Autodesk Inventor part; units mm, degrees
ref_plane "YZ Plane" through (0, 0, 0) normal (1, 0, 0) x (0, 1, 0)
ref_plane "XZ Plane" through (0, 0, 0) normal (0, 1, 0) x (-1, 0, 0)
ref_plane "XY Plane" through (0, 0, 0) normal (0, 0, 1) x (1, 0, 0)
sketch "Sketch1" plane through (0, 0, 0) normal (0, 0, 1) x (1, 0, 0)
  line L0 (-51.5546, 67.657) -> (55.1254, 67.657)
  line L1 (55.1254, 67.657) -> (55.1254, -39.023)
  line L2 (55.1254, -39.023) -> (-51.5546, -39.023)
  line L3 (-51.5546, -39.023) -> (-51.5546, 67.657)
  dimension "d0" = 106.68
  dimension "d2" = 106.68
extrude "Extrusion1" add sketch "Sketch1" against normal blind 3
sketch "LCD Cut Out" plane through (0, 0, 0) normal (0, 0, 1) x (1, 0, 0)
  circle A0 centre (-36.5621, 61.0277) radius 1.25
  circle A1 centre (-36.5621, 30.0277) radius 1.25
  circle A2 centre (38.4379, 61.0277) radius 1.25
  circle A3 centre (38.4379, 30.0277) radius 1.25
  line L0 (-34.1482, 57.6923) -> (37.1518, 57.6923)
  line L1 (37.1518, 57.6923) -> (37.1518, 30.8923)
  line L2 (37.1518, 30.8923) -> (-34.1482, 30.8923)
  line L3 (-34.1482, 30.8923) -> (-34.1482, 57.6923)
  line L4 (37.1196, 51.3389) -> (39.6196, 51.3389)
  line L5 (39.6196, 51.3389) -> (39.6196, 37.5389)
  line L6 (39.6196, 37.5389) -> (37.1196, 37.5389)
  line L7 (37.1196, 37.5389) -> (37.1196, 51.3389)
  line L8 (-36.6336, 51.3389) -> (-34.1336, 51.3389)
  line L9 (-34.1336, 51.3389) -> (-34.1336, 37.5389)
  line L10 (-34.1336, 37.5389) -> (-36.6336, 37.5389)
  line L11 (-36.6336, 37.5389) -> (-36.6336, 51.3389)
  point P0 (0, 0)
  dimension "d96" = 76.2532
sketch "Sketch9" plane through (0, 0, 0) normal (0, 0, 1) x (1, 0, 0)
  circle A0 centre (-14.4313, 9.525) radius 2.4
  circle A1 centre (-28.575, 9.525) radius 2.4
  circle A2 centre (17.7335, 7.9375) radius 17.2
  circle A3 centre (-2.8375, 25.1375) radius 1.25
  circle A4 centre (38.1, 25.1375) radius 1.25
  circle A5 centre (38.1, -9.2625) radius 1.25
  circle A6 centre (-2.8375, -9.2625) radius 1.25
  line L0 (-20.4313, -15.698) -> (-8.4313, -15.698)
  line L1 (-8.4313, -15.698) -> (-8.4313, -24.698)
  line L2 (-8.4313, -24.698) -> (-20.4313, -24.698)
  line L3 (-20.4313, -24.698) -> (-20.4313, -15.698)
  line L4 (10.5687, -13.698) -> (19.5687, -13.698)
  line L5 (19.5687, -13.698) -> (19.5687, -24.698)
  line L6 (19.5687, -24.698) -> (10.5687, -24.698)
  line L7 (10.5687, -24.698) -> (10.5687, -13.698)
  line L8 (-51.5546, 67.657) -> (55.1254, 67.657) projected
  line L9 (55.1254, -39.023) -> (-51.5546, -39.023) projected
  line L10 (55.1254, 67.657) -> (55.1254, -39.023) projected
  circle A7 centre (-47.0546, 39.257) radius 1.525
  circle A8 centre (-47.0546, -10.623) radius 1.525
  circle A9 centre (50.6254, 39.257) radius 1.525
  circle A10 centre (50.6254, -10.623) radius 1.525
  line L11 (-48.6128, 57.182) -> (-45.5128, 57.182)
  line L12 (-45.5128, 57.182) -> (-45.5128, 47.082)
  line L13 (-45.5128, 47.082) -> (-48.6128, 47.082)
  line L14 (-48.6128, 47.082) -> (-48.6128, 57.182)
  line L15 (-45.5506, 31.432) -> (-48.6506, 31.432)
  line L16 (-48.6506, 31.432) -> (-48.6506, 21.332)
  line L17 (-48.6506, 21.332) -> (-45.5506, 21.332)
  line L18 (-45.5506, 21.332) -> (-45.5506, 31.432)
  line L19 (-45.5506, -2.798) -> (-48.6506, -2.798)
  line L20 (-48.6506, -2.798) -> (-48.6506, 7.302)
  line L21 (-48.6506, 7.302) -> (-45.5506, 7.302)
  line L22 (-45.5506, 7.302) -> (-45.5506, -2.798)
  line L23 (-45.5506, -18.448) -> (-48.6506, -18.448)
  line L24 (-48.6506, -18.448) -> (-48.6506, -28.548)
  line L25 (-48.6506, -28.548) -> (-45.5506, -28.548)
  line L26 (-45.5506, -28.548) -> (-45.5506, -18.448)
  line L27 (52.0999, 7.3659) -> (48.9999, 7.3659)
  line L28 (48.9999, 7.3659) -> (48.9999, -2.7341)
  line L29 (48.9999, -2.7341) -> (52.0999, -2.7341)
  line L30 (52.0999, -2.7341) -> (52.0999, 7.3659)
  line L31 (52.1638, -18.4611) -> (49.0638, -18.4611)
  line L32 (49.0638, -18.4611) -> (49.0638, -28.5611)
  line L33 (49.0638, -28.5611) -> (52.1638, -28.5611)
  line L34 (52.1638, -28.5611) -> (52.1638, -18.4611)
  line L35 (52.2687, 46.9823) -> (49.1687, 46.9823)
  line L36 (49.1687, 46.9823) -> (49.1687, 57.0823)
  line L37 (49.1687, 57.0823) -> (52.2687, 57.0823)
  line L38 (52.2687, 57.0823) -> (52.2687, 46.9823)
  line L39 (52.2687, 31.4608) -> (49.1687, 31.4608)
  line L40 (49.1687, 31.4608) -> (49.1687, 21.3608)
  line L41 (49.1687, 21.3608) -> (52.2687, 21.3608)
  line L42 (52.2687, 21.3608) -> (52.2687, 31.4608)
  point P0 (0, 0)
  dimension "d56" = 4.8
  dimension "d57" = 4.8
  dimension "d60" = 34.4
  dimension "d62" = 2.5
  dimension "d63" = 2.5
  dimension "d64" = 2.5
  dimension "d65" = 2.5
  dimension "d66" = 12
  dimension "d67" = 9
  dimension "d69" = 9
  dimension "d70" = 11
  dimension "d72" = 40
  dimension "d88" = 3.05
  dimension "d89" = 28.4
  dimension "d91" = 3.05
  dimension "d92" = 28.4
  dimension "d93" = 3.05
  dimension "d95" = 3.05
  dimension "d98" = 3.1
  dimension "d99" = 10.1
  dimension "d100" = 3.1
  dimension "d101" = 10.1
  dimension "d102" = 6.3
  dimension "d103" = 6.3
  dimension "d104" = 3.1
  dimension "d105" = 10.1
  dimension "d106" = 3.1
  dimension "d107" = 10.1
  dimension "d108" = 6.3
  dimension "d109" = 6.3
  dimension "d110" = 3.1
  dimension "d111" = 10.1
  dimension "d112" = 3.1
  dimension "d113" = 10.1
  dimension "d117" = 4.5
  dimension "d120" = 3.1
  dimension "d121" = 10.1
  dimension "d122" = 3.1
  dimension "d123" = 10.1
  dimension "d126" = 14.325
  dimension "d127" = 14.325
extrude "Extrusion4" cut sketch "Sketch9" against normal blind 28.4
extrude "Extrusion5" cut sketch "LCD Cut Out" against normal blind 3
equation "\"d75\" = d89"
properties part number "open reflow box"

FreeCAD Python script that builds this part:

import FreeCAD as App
import Part
import Sketcher
Q = App.Units.Quantity

doc = App.newDocument("Part")
body = doc.addObject("PartDesign::Body", "Body")

# Sketch on XY plane
sketch1 = body.newObject("Sketcher::SketchObject", "Sketch")
sketch1.AttachmentSupport = (doc.getObject("XY_Plane"), [""])
sketch1.MapMode = "FlatFace"
sketch1.addGeometry([
    Part.LineSegment(App.Vector(55, 68, 0), App.Vector(-52, 68, 0)),
    Part.LineSegment(App.Vector(-52, 68, 0), App.Vector(-52, -39, 0)),
    Part.LineSegment(App.Vector(-52, -39, 0), App.Vector(55, -39, 0)),
    Part.LineSegment(App.Vector(55, -39, 0), App.Vector(55, 68, 0)),
], False)
sketch1.addConstraint([
    Sketcher.Constraint("Coincident", 0, 2, 1, 1),
    Sketcher.Constraint("Coincident", 1, 2, 2, 1),
    Sketcher.Constraint("Coincident", 2, 2, 3, 1),
    Sketcher.Constraint("Coincident", 3, 2, 0, 1),
    Sketcher.Constraint("Horizontal", 0),
    Sketcher.Constraint("Vertical", 1),
    Sketcher.Constraint("Horizontal", 2),
    Sketcher.Constraint("Vertical", 3),
    Sketcher.Constraint("Equal", 2, 1),
    Sketcher.Constraint("DistanceX", 0, 2, 0, 1, Q("106.68 mm")),
    Sketcher.Constraint("DistanceY", -1, 1, 0, 2, Q("67.657 mm")),
    Sketcher.Constraint("DistanceX", 0, 2, -1, 1, Q("51.5546 mm")),
])
pad1 = body.newObject("PartDesign::Pad", "Pad")
pad1.Profile = sketch1
pad1.Length = 3
pad1.Reversed = True

# Sketch on XY plane
sketch2 = body.newObject("Sketcher::SketchObject", "Sketch001")
sketch2.AttachmentSupport = (doc.getObject("XY_Plane"), [""])
sketch2.MapMode = "FlatFace"
sketch2.addGeometry([
    Part.Circle(App.Vector(-14.4, 9.5, 0), App.Vector(0, 0, 1), 2.4),  # 0
    Part.Circle(App.Vector(-28.6, 9.5, 0), App.Vector(0, 0, 1), 2.4),  # 1
    Part.Circle(App.Vector(17.7, 7.9, 0), App.Vector(0, 0, 1), 17.2),  # 2
    Part.Circle(App.Vector(-2.8, 25.1, 0), App.Vector(0, 0, 1), 1.2),  # 3
    Part.Circle(App.Vector(38.1, 25.1, 0), App.Vector(0, 0, 1), 1.2),  # 4
    Part.Circle(App.Vector(38.1, -9.3, 0), App.Vector(0, 0, 1), 1.2),  # 5
    Part.Circle(App.Vector(-2.8, -9.3, 0), App.Vector(0, 0, 1), 1.2),  # 6
    Part.LineSegment(App.Vector(-8.4, -15.7, 0), App.Vector(-20.4, -15.7, 0)),  # 7
    Part.LineSegment(App.Vector(-20.4, -15.7, 0), App.Vector(-20.4, -24.7, 0)),  # 8
    Part.LineSegment(App.Vector(-20.4, -24.7, 0), App.Vector(-8.4, -24.7, 0)),  # 9
    Part.LineSegment(App.Vector(-8.4, -24.7, 0), App.Vector(-8.4, -15.7, 0)),  # 10
    Part.LineSegment(App.Vector(19.6, -13.7, 0), App.Vector(10.6, -13.7, 0)),  # 11
    Part.LineSegment(App.Vector(10.6, -13.7, 0), App.Vector(10.6, -24.7, 0)),  # 12
    Part.LineSegment(App.Vector(10.6, -24.7, 0), App.Vector(19.6, -24.7, 0)),  # 13
    Part.LineSegment(App.Vector(19.6, -24.7, 0), App.Vector(19.6, -13.7, 0)),  # 14
    Part.Circle(App.Vector(-47.1, 39.3, 0), App.Vector(0, 0, 1), 1.5),  # 15
    Part.Circle(App.Vector(-47.1, -10.6, 0), App.Vector(0, 0, 1), 1.5),  # 16
    Part.Circle(App.Vector(50.6, 39.3, 0), App.Vector(0, 0, 1), 1.5),  # 17
    Part.Circle(App.Vector(50.6, -10.6, 0), App.Vector(0, 0, 1), 1.5),  # 18
    Part.LineSegment(App.Vector(-45.5, 57.2, 0), App.Vector(-48.6, 57.2, 0)),  # 19
    Part.LineSegment(App.Vector(-48.6, 57.2, 0), App.Vector(-48.6, 47.1, 0)),  # 20
    Part.LineSegment(App.Vector(-48.6, 47.1, 0), App.Vector(-45.5, 47.1, 0)),  # 21
    Part.LineSegment(App.Vector(-45.5, 47.1, 0), App.Vector(-45.5, 57.2, 0)),  # 22
    Part.LineSegment(App.Vector(-45.6, 21.3, 0), App.Vector(-45.6, 31.4, 0)),  # 23
    Part.LineSegment(App.Vector(-45.6, 31.4, 0), App.Vector(-48.7, 31.4, 0)),  # 24
    Part.LineSegment(App.Vector(-48.7, 31.4, 0), App.Vector(-48.7, 21.3, 0)),  # 25
    Part.LineSegment(App.Vector(-48.7, 21.3, 0), App.Vector(-45.6, 21.3, 0)),  # 26
    Part.LineSegment(App.Vector(-48.7, -2.8, 0), App.Vector(-45.6, -2.8, 0)),  # 27
    Part.LineSegment(App.Vector(-45.6, -2.8, 0), App.Vector(-45.6, 7.3, 0)),  # 28
    Part.LineSegment(App.Vector(-45.6, 7.3, 0), App.Vector(-48.7, 7.3, 0)),  # 29
    Part.LineSegment(App.Vector(-48.7, 7.3, 0), App.Vector(-48.7, -2.8, 0)),  # 30
    Part.LineSegment(App.Vector(-45.6, -28.5, 0), App.Vector(-45.6, -18.4, 0)),  # 31
    Part.LineSegment(App.Vector(-45.6, -18.4, 0), App.Vector(-48.7, -18.4, 0)),  # 32
    Part.LineSegment(App.Vector(-48.7, -18.4, 0), App.Vector(-48.7, -28.5, 0)),  # 33
    Part.LineSegment(App.Vector(-48.7, -28.5, 0), App.Vector(-45.6, -28.5, 0)),  # 34
    Part.LineSegment(App.Vector(52.1, -2.7, 0), App.Vector(52.1, 7.4, 0)),  # 35
    Part.LineSegment(App.Vector(52.1, 7.4, 0), App.Vector(49, 7.4, 0)),  # 36
    Part.LineSegment(App.Vector(49, 7.4, 0), App.Vector(49, -2.7, 0)),  # 37
    Part.LineSegment(App.Vector(49, -2.7, 0), App.Vector(52.1, -2.7, 0)),  # 38
    Part.LineSegment(App.Vector(52.2, -28.6, 0), App.Vector(52.2, -18.5, 0)),  # 39
    Part.LineSegment(App.Vector(52.2, -18.5, 0), App.Vector(49.1, -18.5, 0)),  # 40
    Part.LineSegment(App.Vector(49.1, -18.5, 0), App.Vector(49.1, -28.6, 0)),  # 41
    Part.LineSegment(App.Vector(49.1, -28.6, 0), App.Vector(52.2, -28.6, 0)),  # 42
    Part.LineSegment(App.Vector(49.2, 47, 0), App.Vector(52.3, 47, 0)),  # 43
    Part.LineSegment(App.Vector(52.3, 47, 0), App.Vector(52.3, 57.1, 0)),  # 44
    Part.LineSegment(App.Vector(52.3, 57.1, 0), App.Vector(49.2, 57.1, 0)),  # 45
    Part.LineSegment(App.Vector(49.2, 57.1, 0), App.Vector(49.2, 47, 0)),  # 46
    Part.LineSegment(App.Vector(52.3, 21.4, 0), App.Vector(52.3, 31.5, 0)),  # 47
    Part.LineSegment(App.Vector(52.3, 31.5, 0), App.Vector(49.2, 31.5, 0)),  # 48
    Part.LineSegment(App.Vector(49.2, 31.5, 0), App.Vector(49.2, 21.4, 0)),  # 49
    Part.LineSegment(App.Vector(49.2, 21.4, 0), App.Vector(52.3, 21.4, 0)),  # 50
], False)
sketch2.addConstraint([
    Sketcher.Constraint("Coincident", 7, 2, 8, 1),
    Sketcher.Constraint("Coincident", 8, 2, 9, 1),
    Sketcher.Constraint("Coincident", 9, 2, 10, 1),
    Sketcher.Constraint("Coincident", 10, 2, 7, 1),
    Sketcher.Constraint("Coincident", 11, 2, 12, 1),
    Sketcher.Constraint("Coincident", 12, 2, 13, 1),
    Sketcher.Constraint("Coincident", 13, 2, 14, 1),
    Sketcher.Constraint("Coincident", 14, 2, 11, 1),
    Sketcher.Constraint("Coincident", 19, 2, 20, 1),
    Sketcher.Constraint("Coincident", 20, 2, 21, 1),
    Sketcher.Constraint("Coincident", 21, 2, 22, 1),
    Sketcher.Constraint("Coincident", 22, 2, 19, 1),
    Sketcher.Constraint("Coincident", 23, 2, 24, 1),
    Sketcher.Constraint("Coincident", 24, 2, 25, 1),
    Sketcher.Constraint("Coincident", 25, 2, 26, 1),
    Sketcher.Constraint("Coincident", 26, 2, 23, 1),
    Sketcher.Constraint("Coincident", 27, 2, 28, 1),
    Sketcher.Constraint("Coincident", 28, 2, 29, 1),
    Sketcher.Constraint("Coincident", 29, 2, 30, 1),
    Sketcher.Constraint("Coincident", 30, 2, 27, 1),
    Sketcher.Constraint("Coincident", 31, 2, 32, 1),
    Sketcher.Constraint("Coincident", 32, 2, 33, 1),
    Sketcher.Constraint("Coincident", 33, 2, 34, 1),
    Sketcher.Constraint("Coincident", 34, 2, 31, 1),
    Sketcher.Constraint("Coincident", 35, 2, 36, 1),
    Sketcher.Constraint("Coincident", 36, 2, 37, 1),
    Sketcher.Constraint("Coincident", 37, 2, 38, 1),
    Sketcher.Constraint("Coincident", 38, 2, 35, 1),
    Sketcher.Constraint("Coincident", 39, 2, 40, 1),
    Sketcher.Constraint("Coincident", 40, 2, 41, 1),
    Sketcher.Constraint("Coincident", 41, 2, 42, 1),
    Sketcher.Constraint("Coincident", 42, 2, 39, 1),
    Sketcher.Constraint("Coincident", 43, 2, 44, 1),
    Sketcher.Constraint("Coincident", 44, 2, 45, 1),
    Sketcher.Constraint("Coincident", 45, 2, 46, 1),
    Sketcher.Constraint("Coincident", 46, 2, 43, 1),
    Sketcher.Constraint("Coincident", 47, 2, 48, 1),
    Sketcher.Constraint("Coincident", 48, 2, 49, 1),
    Sketcher.Constraint("Coincident", 49, 2, 50, 1),
    Sketcher.Constraint("Coincident", 50, 2, 47, 1),
    Sketcher.Constraint("Horizontal", 7),
    Sketcher.Constraint("Vertical", 8),
    Sketcher.Constraint("Horizontal", 9),
    Sketcher.Constraint("Vertical", 10),
    Sketcher.Constraint("Horizontal", 11),
    Sketcher.Constraint("Vertical", 12),
    Sketcher.Constraint("Horizontal", 13),
    Sketcher.Constraint("Vertical", 14),
    Sketcher.Constraint("Horizontal", 19),
    Sketcher.Constraint("Vertical", 20),
    Sketcher.Constraint("Horizontal", 21),
    Sketcher.Constraint("Vertical", 22),
    Sketcher.Constraint("Vertical", 23),
    Sketcher.Constraint("Horizontal", 24),
    Sketcher.Constraint("Vertical", 25),
    Sketcher.Constraint("Horizontal", 26),
    Sketcher.Constraint("Horizontal", 27),
    Sketcher.Constraint("Vertical", 28),
    Sketcher.Constraint("Horizontal", 29),
    Sketcher.Constraint("Vertical", 30),
    Sketcher.Constraint("Vertical", 31),
    Sketcher.Constraint("Horizontal", 32),
    Sketcher.Constraint("Vertical", 33),
    Sketcher.Constraint("Horizontal", 34),
    Sketcher.Constraint("Vertical", 35),
    Sketcher.Constraint("Horizontal", 36),
    Sketcher.Constraint("Vertical", 37),
    Sketcher.Constraint("Horizontal", 38),
    Sketcher.Constraint("Vertical", 39),
    Sketcher.Constraint("Horizontal", 40),
    Sketcher.Constraint("Vertical", 41),
    Sketcher.Constraint("Horizontal", 42),
    Sketcher.Constraint("Horizontal", 43),
    Sketcher.Constraint("Vertical", 44),
    Sketcher.Constraint("Horizontal", 45),
    Sketcher.Constraint("Vertical", 46),
    Sketcher.Constraint("Vertical", 47),
    Sketcher.Constraint("Horizontal", 48),
    Sketcher.Constraint("Vertical", 49),
    Sketcher.Constraint("Horizontal", 50),
    Sketcher.Constraint("Equal", 0, 1),
    Sketcher.Constraint("Equal", 3, 4),
    Sketcher.Constraint("Equal", 4, 5),
    Sketcher.Constraint("Equal", 5, 6),
    Sketcher.Constraint("Equal", 15, 16),
    Sketcher.Constraint("Equal", 16, 17),
    Sketcher.Constraint("Equal", 17, 18),
    Sketcher.Constraint("Horizontal", 0, 3, 1, 3),
    Sketcher.Constraint("Horizontal", 3, 3, 4, 3),
    Sketcher.Constraint("Horizontal", 5, 3, 6, 3),
    Sketcher.Constraint("Horizontal", 15, 3, 17, 3),
    Sketcher.Constraint("Horizontal", 16, 3, 18, 3),
    Sketcher.Constraint("Horizontal", 9, 2, 12, 2),
    Sketcher.Constraint("Vertical", 4, 3, 5, 3),
    Sketcher.Constraint("Vertical", 3, 3, 6, 3),
    Sketcher.Constraint("Vertical", 15, 3, 16, 3),
    Sketcher.Constraint("Vertical", 17, 3, 18, 3),
    Sketcher.Constraint("Vertical", 26, 2, 27, 2),
    Sketcher.Constraint("Vertical", 25, 2, 29, 2),
    Sketcher.Constraint("Vertical", 28, 2, 31, 2),
    Sketcher.Constraint("Vertical", 30, 2, 32, 2),
    Sketcher.Constraint("Vertical", 44, 2, 47, 2),
    Sketcher.Constraint("Vertical", 46, 2, 48, 2),
    Sketcher.Constraint("Equal", 21, 24),
    Sketcher.Constraint("Equal", 34, 36),
    Sketcher.Constraint("Equal", 38, 40),
    Sketcher.Constraint("Equal", 42, 43),
    Sketcher.Constraint("Equal", 13, 8),
    Sketcher.Constraint("Equal", 22, 23),
    Sketcher.Constraint("Equal", 25, 28),
    Sketcher.Constraint("Equal", 30, 31),
    Sketcher.Constraint("Equal", 33, 35),
    Sketcher.Constraint("Equal", 37, 39),
    Sketcher.Constraint("Equal", 41, 44),
    Sketcher.Constraint("Equal", 46, 47),
    Sketcher.Constraint("Diameter", 0, Q("4.8 mm")),
    Sketcher.Constraint("Diameter", 2, Q("34.4 mm")),
    Sketcher.Constraint("Diameter", 3, Q("2.5 mm")),
    Sketcher.Constraint("Diameter", 15, Q("3.05 mm")),
    Sketcher.Constraint("DistanceX", 7, 2, 7, 1, Q("12 mm")),
    Sketcher.Constraint("DistanceX", 11, 2, 11, 1, Q("9 mm")),
    Sketcher.Constraint("DistanceY", 12, 2, 12, 1, Q("11 mm")),
    Sketcher.Constraint("DistanceX", 19, 2, 19, 1, Q("3.1 mm")),
    Sketcher.Constraint("DistanceY", 20, 2, 20, 1, Q("10.1 mm")),
    Sketcher.Constraint("DistanceY", 5, 3, 4, 3, Q("34.4 mm")),
    Sketcher.Constraint("DistanceX", -1, 1, 36, 2, Q("49 mm")),
    Sketcher.Constraint("DistanceX", 7, 2, 0, 3, Q("6 mm")),
    Sketcher.Constraint("DistanceX", 10, 2, 11, 2, Q("19 mm")),
    Sketcher.Constraint("DistanceX", 5, 3, 35, 2, Q("14 mm")),
    Sketcher.Constraint("DistanceY", 2, 3, 3, 3, Q("17.2 mm")),
    Sketcher.Constraint("DistanceY", 7, 2, 27, 2, Q("12.9 mm")),
    Sketcher.Constraint("DistanceY", 16, 3, 15, 3, Q("49.88 mm")),
    Sketcher.Constraint("DistanceY", 23, 2, 21, 2, Q("15.65 mm")),
    Sketcher.Constraint("DistanceY", 27, 2, 26, 2, Q("24.13 mm")),
    Sketcher.Constraint("DistanceY", 31, 2, 27, 2, Q("15.65 mm")),
    Sketcher.Constraint("DistanceY", -1, 1, 0, 3, Q("9.525 mm")),
    Sketcher.Constraint("DistanceX", 1, 3, -1, 1, Q("28.575 mm")),
    Sketcher.Constraint("DistanceY", -1, 1, 15, 3, Q("39.257 mm")),
    Sketcher.Constraint("DistanceY", 7, 2, -1, 1, Q("15.698 mm")),
    Sketcher.Constraint("DistanceY", -1, 1, 35, 2, Q("7.366 mm")),
    Sketcher.Constraint("DistanceY", 39, 2, -1, 1, Q("18.461 mm")),
    Sketcher.Constraint("DistanceX", 3, 3, 2, 3, Q("20.571 mm")),
    Sketcher.Constraint("DistanceX", 15, 3, 3, 3, Q("44.217 mm")),
    Sketcher.Constraint("DistanceX", 2, 3, 17, 3, Q("32.892 mm")),
    Sketcher.Constraint("DistanceX", 15, 3, 23, 2, Q("1.504 mm")),
    Sketcher.Constraint("DistanceX", 38, 2, 39, 2, Q("0.064 mm")),
    Sketcher.Constraint("DistanceY", 35, 2, 47, 2, Q("24.095 mm")),
    Sketcher.Constraint("DistanceX", 0, 3, -1, 1, Q("14.4313 mm")),
    Sketcher.Constraint("DistanceX", -1, 1, 2, 3, Q("17.7335 mm")),
    Sketcher.Constraint("DistanceY", -1, 1, 2, 3, Q("7.9375 mm")),
    Sketcher.Constraint("DistanceX", 19, 2, -1, 1, Q("48.6128 mm")),
    Sketcher.Constraint("DistanceX", -1, 1, 43, 2, Q("52.2687 mm")),
    Sketcher.Constraint("DistanceY", -1, 1, 43, 2, Q("46.9823 mm")),
])
pocket1 = body.newObject("PartDesign::Pocket", "Pocket")
pocket1.Profile = sketch2
pocket1.Length = 28.4

# Sketch on XY plane
sketch3 = body.newObject("Sketcher::SketchObject", "Sketch002")
sketch3.AttachmentSupport = (doc.getObject("XY_Plane"), [""])
sketch3.MapMode = "FlatFace"
sketch3.addGeometry([
    Part.Circle(App.Vector(-36.6, 61, 0), App.Vector(0, 0, 1), 1.2),  # 0
    Part.Circle(App.Vector(-36.6, 30, 0), App.Vector(0, 0, 1), 1.2),  # 1
    Part.Circle(App.Vector(38.4, 61, 0), App.Vector(0, 0, 1), 1.2),  # 2
    Part.Circle(App.Vector(38.4, 30, 0), App.Vector(0, 0, 1), 1.2),  # 3
    Part.LineSegment(App.Vector(37.2, 57.7, 0), App.Vector(-34.1, 57.7, 0)),  # 4
    Part.LineSegment(App.Vector(-34.1, 57.7, 0), App.Vector(-34.1, 51.3, 0)),  # 5
    Part.LineSegment(App.Vector(-34.1, 51.3, 0), App.Vector(-36.6, 51.3, 0)),  # 6
    Part.LineSegment(App.Vector(-36.6, 51.3, 0), App.Vector(-36.6, 37.5, 0)),  # 7
    Part.LineSegment(App.Vector(-36.6, 37.5, 0), App.Vector(-34.1, 37.5, 0)),  # 8
    Part.LineSegment(App.Vector(-34.1, 37.5, 0), App.Vector(-34.1, 30.9, 0)),  # 9
    Part.LineSegment(App.Vector(-34.1, 30.9, 0), App.Vector(37.2, 30.9, 0)),  # 10
    Part.LineSegment(App.Vector(37.2, 30.9, 0), App.Vector(37.2, 37.5, 0)),  # 11
    Part.LineSegment(App.Vector(37.2, 37.5, 0), App.Vector(39.6, 37.5, 0)),  # 12
    Part.LineSegment(App.Vector(39.6, 37.5, 0), App.Vector(39.6, 51.3, 0)),  # 13
    Part.LineSegment(App.Vector(39.6, 51.3, 0), App.Vector(37.2, 51.3, 0)),  # 14
    Part.LineSegment(App.Vector(37.2, 51.3, 0), App.Vector(37.2, 57.7, 0)),  # 15
], False)
sketch3.addConstraint([
    Sketcher.Constraint("Coincident", 4, 2, 5, 1),
    Sketcher.Constraint("Coincident", 5, 2, 6, 1),
    Sketcher.Constraint("Coincident", 6, 2, 7, 1),
    Sketcher.Constraint("Coincident", 7, 2, 8, 1),
    Sketcher.Constraint("Coincident", 8, 2, 9, 1),
    Sketcher.Constraint("Coincident", 9, 2, 10, 1),
    Sketcher.Constraint("Coincident", 10, 2, 11, 1),
    Sketcher.Constraint("Coincident", 11, 2, 12, 1),
    Sketcher.Constraint("Coincident", 12, 2, 13, 1),
    Sketcher.Constraint("Coincident", 13, 2, 14, 1),
    Sketcher.Constraint("Coincident", 14, 2, 15, 1),
    Sketcher.Constraint("Coincident", 15, 2, 4, 1),
    Sketcher.Constraint("Horizontal", 4),
    Sketcher.Constraint("Vertical", 5),
    Sketcher.Constraint("Horizontal", 6),
    Sketcher.Constraint("Vertical", 7),
    Sketcher.Constraint("Horizontal", 8),
    Sketcher.Constraint("Vertical", 9),
    Sketcher.Constraint("Horizontal", 10),
    Sketcher.Constraint("Vertical", 11),
    Sketcher.Constraint("Horizontal", 12),
    Sketcher.Constraint("Vertical", 13),
    Sketcher.Constraint("Horizontal", 14),
    Sketcher.Constraint("Vertical", 15),
    Sketcher.Constraint("Equal", 0, 1),
    Sketcher.Constraint("Equal", 1, 2),
    Sketcher.Constraint("Equal", 2, 3),
    Sketcher.Constraint("Horizontal", 0, 3, 2, 3),
    Sketcher.Constraint("Horizontal", 1, 3, 3, 3),
    Sketcher.Constraint("Horizontal", 8, 2, 11, 2),
    Sketcher.Constraint("Horizontal", 6, 2, 13, 2),
    Sketcher.Constraint("Vertical", 0, 3, 1, 3),
    Sketcher.Constraint("Vertical", 2, 3, 3, 3),
    Sketcher.Constraint("Vertical", 5, 2, 8, 2),
    Sketcher.Constraint("Vertical", 11, 2, 14, 2),
    Sketcher.Constraint("Diameter", 0, Q("2.5 mm")),
    Sketcher.Constraint("DistanceX", 4, 2, 4, 1, Q("71.3 mm")),
    Sketcher.Constraint("DistanceY", 7, 2, 7, 1, Q("13.8 mm")),
    Sketcher.Constraint("DistanceY", 1, 3, 0, 3, Q("31 mm")),
    Sketcher.Constraint("DistanceX", 0, 3, 2, 3, Q("75 mm")),
    Sketcher.Constraint("DistanceX", 6, 2, 6, 1, Q("2.4854 mm")),
    Sketcher.Constraint("DistanceX", 12, 1, 12, 2, Q("2.4678 mm")),
    Sketcher.Constraint("DistanceY", 5, 2, 5, 1, Q("6.3534 mm")),
    Sketcher.Constraint("DistanceY", 9, 2, 9, 1, Q("6.6466 mm")),
    Sketcher.Constraint("DistanceX", 0, 3, -1, 1, Q("36.562 mm")),
    Sketcher.Constraint("DistanceY", -1, 1, 5, 2, Q("51.339 mm")),
    Sketcher.Constraint("DistanceX", 0, 3, 4, 2, Q("2.414 mm")),
    Sketcher.Constraint("DistanceY", -1, 1, 0, 3, Q("61.0277 mm")),
])
pocket2 = body.newObject("PartDesign::Pocket", "Pocket001")
pocket2.Profile = sketch3
pocket2.Length = 3

doc.recompute()
